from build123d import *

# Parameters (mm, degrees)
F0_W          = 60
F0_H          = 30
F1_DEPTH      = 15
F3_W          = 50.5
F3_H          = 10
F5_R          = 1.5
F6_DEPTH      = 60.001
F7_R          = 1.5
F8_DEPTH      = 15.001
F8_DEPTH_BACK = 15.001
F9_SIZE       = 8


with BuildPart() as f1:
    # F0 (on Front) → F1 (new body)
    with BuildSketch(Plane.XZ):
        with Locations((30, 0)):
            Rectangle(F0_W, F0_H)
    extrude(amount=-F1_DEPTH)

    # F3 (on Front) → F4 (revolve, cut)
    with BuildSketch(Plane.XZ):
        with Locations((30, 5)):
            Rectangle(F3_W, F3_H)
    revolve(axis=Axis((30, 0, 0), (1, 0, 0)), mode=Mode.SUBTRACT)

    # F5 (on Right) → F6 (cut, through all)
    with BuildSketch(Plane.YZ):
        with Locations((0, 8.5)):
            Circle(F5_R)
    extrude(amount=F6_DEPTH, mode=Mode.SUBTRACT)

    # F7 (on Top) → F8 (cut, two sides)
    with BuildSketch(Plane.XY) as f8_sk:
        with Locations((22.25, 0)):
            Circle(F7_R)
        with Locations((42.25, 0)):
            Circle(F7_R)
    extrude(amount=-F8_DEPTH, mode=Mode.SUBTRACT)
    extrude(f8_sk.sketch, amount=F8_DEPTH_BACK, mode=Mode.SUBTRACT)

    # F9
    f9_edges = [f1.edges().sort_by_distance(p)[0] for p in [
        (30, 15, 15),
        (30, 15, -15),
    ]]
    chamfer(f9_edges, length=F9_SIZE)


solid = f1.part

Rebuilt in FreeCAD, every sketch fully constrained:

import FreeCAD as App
import Part
import Sketcher


def edges_at(feature, points):
    """Names of the edges that pass closest to the given points."""
    edges = feature.Shape.Edges
    near = lambda p: min(range(len(edges)), key=lambda i: edges[i].distToShape(Part.Vertex(*p))[0])
    return sorted({f"Edge{near(p) + 1}" for p in points})

doc = App.newDocument("Part")
body = doc.addObject("PartDesign::Body", "Body")

# Sketch on XZ plane
sketch1 = body.newObject("Sketcher::SketchObject", "Sketch")
sketch1.AttachmentSupport = (doc.getObject("XZ_Plane"), [""])
sketch1.MapMode = "FlatFace"
sketch1.addGeometry([
    Part.LineSegment(App.Vector(0, 15, 0), App.Vector(0, -15, 0)),
    Part.LineSegment(App.Vector(0, -15, 0), App.Vector(60, -15, 0)),
    Part.LineSegment(App.Vector(60, -15, 0), App.Vector(60, 15, 0)),
    Part.LineSegment(App.Vector(60, 15, 0), App.Vector(0, 15, 0)),
], False)
sketch1.addConstraint([
    Sketcher.Constraint("Coincident", 0, 2, 1, 1),
    Sketcher.Constraint("Coincident", 1, 2, 2, 1),
    Sketcher.Constraint("Coincident", 2, 2, 3, 1),
    Sketcher.Constraint("Coincident", 3, 2, 0, 1),
    Sketcher.Constraint("Vertical", 0),
    Sketcher.Constraint("Horizontal", 1),
    Sketcher.Constraint("Vertical", 2),
    Sketcher.Constraint("Horizontal", 3),
    Sketcher.Constraint("Symmetric", 0, 2, 3, 2, -1, 1),
    Sketcher.Constraint("DistanceX", 1, 1, 1, 2, 60.0),
    Sketcher.Constraint("DistanceY", 0, 2, 0, 1, 30.0),
])
pad1 = body.newObject("PartDesign::Pad", "Pad")
pad1.Profile = sketch1
pad1.Length = 15
pad1.Reversed = True

# Sketch on XZ plane
sketch2 = body.newObject("Sketcher::SketchObject", "Sketch001")
sketch2.AttachmentSupport = (doc.getObject("XZ_Plane"), [""])
sketch2.MapMode = "FlatFace"
sketch2.addGeometry([
    Part.LineSegment(App.Vector(5, 10, 0), App.Vector(5, 0, 0)),
    Part.LineSegment(App.Vector(5, 0, 0), App.Vector(55, 0, 0)),
    Part.LineSegment(App.Vector(55, 0, 0), App.Vector(55, 10, 0)),
    Part.LineSegment(App.Vector(55, 10, 0), App.Vector(5, 10, 0)),
], False)
sketch2.addConstraint([
    Sketcher.Constraint("Coincident", 0, 2, 1, 1),
    Sketcher.Constraint("Coincident", 1, 2, 2, 1),
    Sketcher.Constraint("Coincident", 2, 2, 3, 1),
    Sketcher.Constraint("Coincident", 3, 2, 0, 1),
    Sketcher.Constraint("Vertical", 0),
    Sketcher.Constraint("Horizontal", 1),
    Sketcher.Constraint("Vertical", 2),
    Sketcher.Constraint("Horizontal", 3),
    Sketcher.Constraint("PointOnObject", 0, 2, -1),
    Sketcher.Constraint("DistanceY", 0, 2, 0, 1, 10.0),
    Sketcher.Constraint("DistanceX", 1, 1, 1, 2, 50.5),
    Sketcher.Constraint("DistanceX", -1, 1, 0, 2, 4.75),
])
groove = body.newObject("PartDesign::Groove", "Groove")
groove.Profile = sketch2
groove.ReferenceAxis = (sketch2, ["H_Axis"])
groove.Angle = 360

# Sketch on YZ plane
sketch3 = body.newObject("Sketcher::SketchObject", "Sketch002")
sketch3.AttachmentSupport = (doc.getObject("YZ_Plane"), [""])
sketch3.MapMode = "FlatFace"
sketch3.addGeometry(Part.Circle(App.Vector(0, 8.5, 0), App.Vector(0, 0, 1), 1.5), False)
sketch3.addConstraint([
    Sketcher.Constraint("PointOnObject", 0, 3, -2),
    Sketcher.Constraint("Diameter", 0, 3.0),
    Sketcher.Constraint("DistanceY", -1, 1, 0, 3, 8.5),
])
pocket1 = body.newObject("PartDesign::Pocket", "Pocket")
pocket1.Profile = sketch3
pocket1.Type = "ThroughAll"
pocket1.Reversed = True

# Sketch on XY plane
sketch4 = body.newObject("Sketcher::SketchObject", "Sketch003")
sketch4.AttachmentSupport = (doc.getObject("XY_Plane"), [""])
sketch4.MapMode = "FlatFace"
sketch4.addGeometry([
    Part.Circle(App.Vector(22.2, 0, 0), App.Vector(0, 0, 1), 1.5),
    Part.Circle(App.Vector(42.2, 0, 0), App.Vector(0, 0, 1), 1.5),
], False)
sketch4.addConstraint([
    Sketcher.Constraint("Equal", 0, 1),
    Sketcher.Constraint("PointOnObject", 0, 3, -1),
    Sketcher.Constraint("PointOnObject", 1, 3, -1),
    Sketcher.Constraint("Diameter", 0, 3.0),
    Sketcher.Constraint("DistanceX", 0, 3, 1, 3, 20.0),
    Sketcher.Constraint("DistanceX", -1, 1, 0, 3, 22.25),
])
pocket2 = body.newObject("PartDesign::Pocket", "Pocket001")
pocket2.Profile = sketch4
pocket2.Type = "ThroughAll"
pocket2.Midplane = True
doc.recompute()

chamfer = body.newObject("PartDesign::Chamfer", "Chamfer")
chamfer.Base = (pocket2, edges_at(pocket2, [(30, 15, 15), (30, 15, -15)]))
chamfer.Size = 8

doc.recompute()
